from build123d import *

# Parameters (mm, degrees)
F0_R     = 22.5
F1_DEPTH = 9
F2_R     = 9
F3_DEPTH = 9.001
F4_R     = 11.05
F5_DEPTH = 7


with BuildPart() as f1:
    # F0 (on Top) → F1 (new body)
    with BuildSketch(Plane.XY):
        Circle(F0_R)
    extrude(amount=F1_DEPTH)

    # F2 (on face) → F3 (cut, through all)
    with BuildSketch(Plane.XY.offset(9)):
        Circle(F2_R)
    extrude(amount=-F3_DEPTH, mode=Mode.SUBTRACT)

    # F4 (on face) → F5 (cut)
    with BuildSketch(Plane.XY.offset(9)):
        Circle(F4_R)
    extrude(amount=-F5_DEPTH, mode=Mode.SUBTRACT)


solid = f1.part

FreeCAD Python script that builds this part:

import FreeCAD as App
import Part
import Sketcher

V = App.Vector

doc = App.newDocument("Part")
body = doc.addObject("PartDesign::Body", "Body")

# Sketch on XY plane
sketch1 = body.newObject("Sketcher::SketchObject", "Sketch")
sketch1.AttachmentSupport = (doc.getObject("XY_Plane"), [""])
sketch1.MapMode = "FlatFace"
sketch1.addGeometry(Part.Circle(V(0, 0, 0), V(0, 0, 1), 22.5), False)
sketch1.addConstraint([
    Sketcher.Constraint("Coincident", 0, 3, -1, 1),
    Sketcher.Constraint("Diameter", 0, 45.0),
])
pad1 = body.newObject("PartDesign::Pad", "Pad")
pad1.Profile = sketch1
pad1.Length = 9

# Sketch on XY plane
sketch2 = body.newObject("Sketcher::SketchObject", "Sketch001")
sketch2.AttachmentSupport = (doc.getObject("XY_Plane"), [""])
sketch2.MapMode = "FlatFace"
sketch2.AttachmentOffset = App.Placement(V(0, 0, 9), App.Rotation())
sketch2.addGeometry(Part.Circle(V(0, 0, 0), V(0, 0, 1), 9), False)
sketch2.addConstraint([
    Sketcher.Constraint("Coincident", 0, 3, -1, 1),
    Sketcher.Constraint("Diameter", 0, 18.0),
])
pocket1 = body.newObject("PartDesign::Pocket", "Pocket")
pocket1.Profile = sketch2
pocket1.Type = "ThroughAll"

# Sketch on XY plane
sketch3 = body.newObject("Sketcher::SketchObject", "Sketch002")
sketch3.AttachmentSupport = (doc.getObject("XY_Plane"), [""])
sketch3.MapMode = "FlatFace"
sketch3.AttachmentOffset = App.Placement(V(0, 0, 9), App.Rotation())
sketch3.addGeometry(Part.Circle(V(0, 0, 0), V(0, 0, 1), 11.05), False)
sketch3.addConstraint([
    Sketcher.Constraint("Coincident", 0, 3, -1, 1),
    Sketcher.Constraint("Diameter", 0, 22.1),
])
pocket2 = body.newObject("PartDesign::Pocket", "Pocket001")
pocket2.Profile = sketch3
pocket2.Length = 7

doc.recompute()
